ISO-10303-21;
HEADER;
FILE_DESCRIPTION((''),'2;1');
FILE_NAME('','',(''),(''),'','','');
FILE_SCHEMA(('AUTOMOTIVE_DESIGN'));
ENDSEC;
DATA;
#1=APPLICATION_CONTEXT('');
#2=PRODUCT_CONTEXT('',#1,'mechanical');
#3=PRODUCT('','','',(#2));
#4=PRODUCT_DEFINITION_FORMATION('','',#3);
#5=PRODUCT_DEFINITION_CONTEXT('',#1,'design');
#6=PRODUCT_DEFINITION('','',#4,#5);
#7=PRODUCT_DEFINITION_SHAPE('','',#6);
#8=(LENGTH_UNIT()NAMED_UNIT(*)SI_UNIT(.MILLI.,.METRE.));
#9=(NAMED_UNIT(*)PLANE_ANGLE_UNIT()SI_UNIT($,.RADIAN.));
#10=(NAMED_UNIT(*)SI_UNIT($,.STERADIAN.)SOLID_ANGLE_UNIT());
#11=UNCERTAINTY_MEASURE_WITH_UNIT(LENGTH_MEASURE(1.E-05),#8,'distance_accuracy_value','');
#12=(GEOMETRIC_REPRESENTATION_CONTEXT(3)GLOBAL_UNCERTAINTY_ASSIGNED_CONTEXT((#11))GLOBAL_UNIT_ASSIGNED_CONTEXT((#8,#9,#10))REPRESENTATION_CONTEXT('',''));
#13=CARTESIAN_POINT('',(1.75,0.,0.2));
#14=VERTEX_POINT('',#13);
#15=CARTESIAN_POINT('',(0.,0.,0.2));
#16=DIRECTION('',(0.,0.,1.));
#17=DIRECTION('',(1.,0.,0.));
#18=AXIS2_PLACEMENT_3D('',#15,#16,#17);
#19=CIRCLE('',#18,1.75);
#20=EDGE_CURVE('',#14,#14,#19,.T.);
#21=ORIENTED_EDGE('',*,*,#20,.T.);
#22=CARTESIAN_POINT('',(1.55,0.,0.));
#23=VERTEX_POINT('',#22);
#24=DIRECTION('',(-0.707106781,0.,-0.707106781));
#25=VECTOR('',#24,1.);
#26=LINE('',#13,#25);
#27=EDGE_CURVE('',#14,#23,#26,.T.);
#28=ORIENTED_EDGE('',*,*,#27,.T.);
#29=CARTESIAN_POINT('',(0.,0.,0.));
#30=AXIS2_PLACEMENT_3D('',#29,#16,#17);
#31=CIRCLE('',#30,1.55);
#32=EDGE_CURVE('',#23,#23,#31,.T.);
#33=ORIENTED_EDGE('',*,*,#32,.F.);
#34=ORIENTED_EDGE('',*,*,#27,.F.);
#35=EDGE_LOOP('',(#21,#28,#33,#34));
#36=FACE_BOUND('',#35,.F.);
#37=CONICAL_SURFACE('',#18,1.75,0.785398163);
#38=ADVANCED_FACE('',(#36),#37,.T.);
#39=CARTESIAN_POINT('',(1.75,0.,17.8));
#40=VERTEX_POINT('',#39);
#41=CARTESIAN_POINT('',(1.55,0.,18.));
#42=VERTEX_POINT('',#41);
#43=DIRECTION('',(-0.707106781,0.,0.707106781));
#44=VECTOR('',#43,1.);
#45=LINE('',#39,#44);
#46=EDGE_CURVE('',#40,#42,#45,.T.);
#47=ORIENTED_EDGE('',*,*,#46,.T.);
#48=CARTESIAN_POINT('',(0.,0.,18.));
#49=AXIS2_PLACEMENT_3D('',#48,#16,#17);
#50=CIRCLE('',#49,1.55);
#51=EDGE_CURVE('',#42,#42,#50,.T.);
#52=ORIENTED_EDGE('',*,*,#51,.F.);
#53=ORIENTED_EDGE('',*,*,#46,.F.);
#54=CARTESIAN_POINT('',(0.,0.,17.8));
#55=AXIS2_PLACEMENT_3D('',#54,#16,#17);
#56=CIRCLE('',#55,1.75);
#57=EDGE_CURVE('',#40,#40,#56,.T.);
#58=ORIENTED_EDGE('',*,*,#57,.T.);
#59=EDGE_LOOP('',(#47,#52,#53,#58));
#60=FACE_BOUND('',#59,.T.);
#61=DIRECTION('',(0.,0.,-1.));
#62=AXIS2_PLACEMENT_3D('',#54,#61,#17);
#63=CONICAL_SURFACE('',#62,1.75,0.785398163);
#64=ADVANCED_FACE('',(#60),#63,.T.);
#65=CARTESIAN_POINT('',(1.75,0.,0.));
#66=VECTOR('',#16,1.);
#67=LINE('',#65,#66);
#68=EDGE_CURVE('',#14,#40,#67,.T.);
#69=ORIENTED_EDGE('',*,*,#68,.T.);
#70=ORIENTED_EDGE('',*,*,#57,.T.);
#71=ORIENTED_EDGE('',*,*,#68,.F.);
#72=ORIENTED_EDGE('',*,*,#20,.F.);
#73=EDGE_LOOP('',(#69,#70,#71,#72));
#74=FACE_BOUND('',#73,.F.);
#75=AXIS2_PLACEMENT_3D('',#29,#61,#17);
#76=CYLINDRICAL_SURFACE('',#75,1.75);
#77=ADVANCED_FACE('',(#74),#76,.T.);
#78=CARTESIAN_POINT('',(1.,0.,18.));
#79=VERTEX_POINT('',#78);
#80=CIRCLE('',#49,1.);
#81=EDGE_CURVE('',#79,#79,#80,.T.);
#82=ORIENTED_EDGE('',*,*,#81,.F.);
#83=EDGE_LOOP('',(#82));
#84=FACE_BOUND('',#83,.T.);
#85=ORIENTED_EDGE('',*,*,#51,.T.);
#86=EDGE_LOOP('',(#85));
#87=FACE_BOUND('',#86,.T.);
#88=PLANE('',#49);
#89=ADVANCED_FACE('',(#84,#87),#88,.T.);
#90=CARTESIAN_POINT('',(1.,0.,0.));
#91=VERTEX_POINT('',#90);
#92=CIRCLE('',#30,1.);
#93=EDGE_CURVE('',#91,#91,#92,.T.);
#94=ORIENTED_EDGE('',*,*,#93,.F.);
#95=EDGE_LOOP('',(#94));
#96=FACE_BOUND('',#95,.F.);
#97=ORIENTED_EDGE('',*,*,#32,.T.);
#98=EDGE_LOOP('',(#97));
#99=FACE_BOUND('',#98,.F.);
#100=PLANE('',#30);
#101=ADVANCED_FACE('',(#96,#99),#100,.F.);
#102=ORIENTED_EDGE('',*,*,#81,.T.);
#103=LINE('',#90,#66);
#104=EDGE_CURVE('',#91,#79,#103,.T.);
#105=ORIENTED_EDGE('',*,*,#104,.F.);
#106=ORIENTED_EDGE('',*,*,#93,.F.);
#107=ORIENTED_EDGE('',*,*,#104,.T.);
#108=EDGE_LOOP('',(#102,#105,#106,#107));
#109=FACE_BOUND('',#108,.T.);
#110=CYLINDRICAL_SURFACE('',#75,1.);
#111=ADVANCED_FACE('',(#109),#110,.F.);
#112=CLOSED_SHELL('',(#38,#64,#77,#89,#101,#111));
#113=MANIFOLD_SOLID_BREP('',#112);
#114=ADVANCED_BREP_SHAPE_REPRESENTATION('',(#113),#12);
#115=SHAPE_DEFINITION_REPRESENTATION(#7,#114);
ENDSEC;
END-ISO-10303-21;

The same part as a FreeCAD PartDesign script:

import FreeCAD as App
import Part
import Sketcher
Q = App.Units.Quantity


def edges_at(feature, points):
    """Names of the edges that pass closest to the given points."""
    edges = feature.Shape.Edges
    near = lambda p: min(range(len(edges)), key=lambda i: edges[i].distToShape(Part.Vertex(*p))[0])
    return sorted({f"Edge{near(p) + 1}" for p in points})

doc = App.newDocument("Part")
body = doc.addObject("PartDesign::Body", "Body")

# Sketch on XY plane
sketch1 = body.newObject("Sketcher::SketchObject", "Sketch")
sketch1.AttachmentSupport = (doc.getObject("XY_Plane"), [""])
sketch1.MapMode = "FlatFace"
sketch1.addGeometry([
    Part.Circle(App.Vector(0, 0, 0), App.Vector(0, 0, 1), 1.75),
    Part.Circle(App.Vector(0, 0, 0), App.Vector(0, 0, 1), 1),
], False)
sketch1.addConstraint([
    Sketcher.Constraint("Coincident", 0, 3, -1, 1),
    Sketcher.Constraint("Coincident", 1, 3, -1, 1),
    Sketcher.Constraint("Diameter", 1, Q("2 mm")),
    Sketcher.Constraint("Diameter", 0, Q("3.5 mm")),
])
pad1 = body.newObject("PartDesign::Pad", "Pad")
pad1.Profile = sketch1
pad1.Length = 18
doc.recompute()

chamfer = body.newObject("PartDesign::Chamfer", "Chamfer")
chamfer.Base = (pad1, edges_at(pad1, [(-1.75, 0, 18), (-1.75, 0, 0)]))
chamfer.Size = 0.2

doc.recompute()
